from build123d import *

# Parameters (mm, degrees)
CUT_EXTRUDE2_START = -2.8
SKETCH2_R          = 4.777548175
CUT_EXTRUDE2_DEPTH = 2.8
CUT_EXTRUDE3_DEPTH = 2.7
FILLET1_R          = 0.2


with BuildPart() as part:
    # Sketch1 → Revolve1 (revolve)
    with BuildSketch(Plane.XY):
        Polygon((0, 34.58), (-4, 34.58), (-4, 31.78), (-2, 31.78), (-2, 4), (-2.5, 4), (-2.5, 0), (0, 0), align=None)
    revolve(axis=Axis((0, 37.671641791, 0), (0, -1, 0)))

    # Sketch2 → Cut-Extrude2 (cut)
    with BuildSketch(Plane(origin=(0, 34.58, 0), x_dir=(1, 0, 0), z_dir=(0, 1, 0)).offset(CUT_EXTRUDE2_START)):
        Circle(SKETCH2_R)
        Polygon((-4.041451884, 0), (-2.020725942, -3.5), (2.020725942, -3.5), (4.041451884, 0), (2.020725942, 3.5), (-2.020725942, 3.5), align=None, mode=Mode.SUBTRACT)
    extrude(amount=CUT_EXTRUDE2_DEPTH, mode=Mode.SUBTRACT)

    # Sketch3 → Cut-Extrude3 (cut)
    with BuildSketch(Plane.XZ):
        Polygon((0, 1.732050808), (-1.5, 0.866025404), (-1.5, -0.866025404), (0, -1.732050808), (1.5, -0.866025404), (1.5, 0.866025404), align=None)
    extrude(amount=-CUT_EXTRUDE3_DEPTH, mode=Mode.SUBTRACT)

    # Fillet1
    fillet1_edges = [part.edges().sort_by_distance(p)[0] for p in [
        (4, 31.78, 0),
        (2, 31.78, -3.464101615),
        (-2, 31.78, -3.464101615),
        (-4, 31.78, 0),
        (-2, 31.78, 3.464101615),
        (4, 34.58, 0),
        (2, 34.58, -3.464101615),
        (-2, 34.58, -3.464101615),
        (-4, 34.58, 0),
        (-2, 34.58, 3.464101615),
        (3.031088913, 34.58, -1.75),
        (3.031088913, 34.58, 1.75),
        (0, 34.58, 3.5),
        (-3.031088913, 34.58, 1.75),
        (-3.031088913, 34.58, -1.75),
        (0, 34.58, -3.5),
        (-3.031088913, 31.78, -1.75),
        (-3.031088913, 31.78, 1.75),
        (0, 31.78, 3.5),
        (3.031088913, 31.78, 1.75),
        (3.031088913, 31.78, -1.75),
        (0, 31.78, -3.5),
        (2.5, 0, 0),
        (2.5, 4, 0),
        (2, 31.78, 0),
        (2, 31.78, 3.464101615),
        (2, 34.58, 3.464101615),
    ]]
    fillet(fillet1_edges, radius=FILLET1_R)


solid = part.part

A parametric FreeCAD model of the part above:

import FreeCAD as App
import Part
import Sketcher

V = App.Vector
Q = App.Units.Quantity


def edges_at(feature, points):
    """Names of the edges that pass closest to the given points."""
    edges = feature.Shape.Edges
    near = lambda p: min(range(len(edges)), key=lambda i: edges[i].distToShape(Part.Vertex(*p))[0])
    return sorted({f"Edge{near(p) + 1}" for p in points})


def add_polygon(sketch, points):
    """Adds a closed chain of lines whose ends are joined by coincident constraints."""
    first, n = sketch.GeometryCount, len(points)
    for a, b in zip(points, points[1:] + points[:1]):
        sketch.addGeometry(Part.LineSegment(App.Vector(*a, 0), App.Vector(*b, 0)), False)
    for i in range(n):
        sketch.addConstraint(Sketcher.Constraint("Coincident", first + i, 2, first + (i + 1) % n, 1))

doc = App.newDocument("Part")
body = doc.addObject("PartDesign::Body", "Body")

sketch1 = doc.addObject("Sketcher::SketchObject", "Sketch")
body.addObject(sketch1)
sketch1.AttachmentSupport = (doc.XY_Plane, [""])
sketch1.MapMode = "FlatFace"
add_polygon(sketch1, [(0, 34.58), (-4, 34.58), (-4, 31.78), (-2, 31.78), (-2, 4), (-2.5, 4), (-2.5, 0), (0, 0)])
sketch1.addConstraint([
    Sketcher.Constraint("Horizontal", 0),
    Sketcher.Constraint("Vertical", 1),
    Sketcher.Constraint("Horizontal", 2),
    Sketcher.Constraint("Vertical", 3),
    Sketcher.Constraint("Horizontal", 4),
    Sketcher.Constraint("Vertical", 5),
    Sketcher.Constraint("Horizontal", 6),
    Sketcher.Constraint("Vertical", 7),
    Sketcher.Constraint("Coincident", 6, 2, -1, 1),
    Sketcher.Constraint("Equal", 0, 5),
    Sketcher.Constraint("DistanceX", 0, 2, 0, 1, Q("4 mm")),
    Sketcher.Constraint("DistanceX", 2, 1, 2, 2, Q("2 mm")),
    Sketcher.Constraint("DistanceX", 4, 2, 4, 1, Q("0.5 mm")),
    Sketcher.Constraint("DistanceY", 1, 2, 1, 1, Q("2.8 mm")),
    Sketcher.Constraint("DistanceY", 3, 2, 3, 1, Q("27.78 mm")),
])
revolution = doc.addObject("PartDesign::Revolution", "Revolution")
body.addObject(revolution)
revolution.Profile = sketch1
revolution.ReferenceAxis = (sketch1, ["V_Axis"])
revolution.Angle = 360

sketch2 = doc.addObject("Sketcher::SketchObject", "Sketch001")
body.addObject(sketch2)
sketch2.AttachmentSupport = (doc.XZ_Plane, [""])
sketch2.MapMode = "FlatFace"
sketch2.AttachmentOffset = App.Placement(V(0, 0, -31.78), App.Rotation())
sketch2.addGeometry(Part.Circle(V(0, 0, 0), V(0, 0, 1), 4.777548), False)
add_polygon(sketch2, [(-2.020726, 3.5), (-4.041452, 0), (-2.020726, -3.5), (2.020726, -3.5), (4.041452, 0), (2.020726, 3.5)])
sketch2.addConstraint([
    Sketcher.Constraint("Horizontal", 3),
    Sketcher.Constraint("Horizontal", 6),
    Sketcher.Constraint("Coincident", 0, 3, -1, 1),
    Sketcher.Constraint("Symmetric", 1, 2, 4, 2, -1, 1),
    Sketcher.Constraint("Symmetric", 2, 2, 5, 2, -1, 1),
    Sketcher.Constraint("PointOnObject", 1, 2, -1),
    Sketcher.Constraint("Parallel", 1, 4),
    Sketcher.Constraint("Vertical", 3, 2, 5, 2),
    Sketcher.Constraint("Angle", 1, Q("-120 deg")),
    Sketcher.Constraint("DistanceY", 3, 2, 5, 2, Q("7 mm")),
    Sketcher.Constraint("Diameter", 0, Q("9.555096 mm")),
    Sketcher.Constraint("DistanceX", 3, 1, 3, 2, Q("4.041452 mm")),
])
pocket1 = doc.addObject("PartDesign::Pocket", "Pocket")
body.addObject(pocket1)
pocket1.Profile = sketch2
pocket1.Length = 2.8

sketch3 = doc.addObject("Sketcher::SketchObject", "Sketch002")
body.addObject(sketch3)
sketch3.AttachmentSupport = (doc.XZ_Plane, [""])
sketch3.MapMode = "FlatFace"
add_polygon(sketch3, [(0, 1.732051), (-1.5, 0.866025), (-1.5, -0.866025), (0, -1.732051), (1.5, -0.866025), (1.5, 0.866025)])
sketch3.addConstraint([
    Sketcher.Constraint("Vertical", 1),
    Sketcher.Constraint("Vertical", 4),
    Sketcher.Constraint("Symmetric", 0, 2, 3, 2, -1, 1),
    Sketcher.Constraint("Symmetric", 2, 2, 5, 2, -1, 1),
    Sketcher.Constraint("PointOnObject", 2, 2, -2),
    Sketcher.Constraint("Parallel", 2, 5),
    Sketcher.Constraint("Horizontal", 1, 2, 3, 2),
    Sketcher.Constraint("Angle", 0, Q("-150 deg")),
    Sketcher.Constraint("DistanceX", 1, 2, 3, 2, Q("3 mm")),
    Sketcher.Constraint("DistanceY", 1, 2, 1, 1, Q("1.732051 mm")),
])
pocket2 = doc.addObject("PartDesign::Pocket", "Pocket001")
body.addObject(pocket2)
pocket2.Profile = sketch3
pocket2.Length = 2.7
doc.recompute()

fillet = doc.addObject("PartDesign::Fillet", "Fillet")
body.addObject(fillet)
fillet.Base = (pocket2, edges_at(pocket2, [
    (4, 31.78, 0),
    (2, 31.78, -3.464),
    (-2, 31.78, -3.464),
    (-4, 31.78, 0),
    (-2, 31.78, 3.464),
    (4, 34.58, 0),
    (2, 34.58, -3.464),
    (-2, 34.58, -3.464),
    (-4, 34.58, 0),
    (-2, 34.58, 3.464),
    (3.031, 34.58, -1.75),
    (3.031, 34.58, 1.75),
    (0, 34.58, 3.5),
    (-3.031, 34.58, 1.75),
    (-3.031, 34.58, -1.75),
    (0, 34.58, -3.5),
    (-3.031, 31.78, -1.75),
    (-3.031, 31.78, 1.75),
    (0, 31.78, 3.5),
    (3.031, 31.78, 1.75),
    (3.031, 31.78, -1.75),
    (0, 31.78, -3.5),
    (2.5, 0, 0),
    (2.5, 4, 0),
    (2, 31.78, 0),
    (2, 31.78, 3.464),
    (2, 34.58, 3.464),
]))
fillet.Radius = 0.2

doc.recompute()
